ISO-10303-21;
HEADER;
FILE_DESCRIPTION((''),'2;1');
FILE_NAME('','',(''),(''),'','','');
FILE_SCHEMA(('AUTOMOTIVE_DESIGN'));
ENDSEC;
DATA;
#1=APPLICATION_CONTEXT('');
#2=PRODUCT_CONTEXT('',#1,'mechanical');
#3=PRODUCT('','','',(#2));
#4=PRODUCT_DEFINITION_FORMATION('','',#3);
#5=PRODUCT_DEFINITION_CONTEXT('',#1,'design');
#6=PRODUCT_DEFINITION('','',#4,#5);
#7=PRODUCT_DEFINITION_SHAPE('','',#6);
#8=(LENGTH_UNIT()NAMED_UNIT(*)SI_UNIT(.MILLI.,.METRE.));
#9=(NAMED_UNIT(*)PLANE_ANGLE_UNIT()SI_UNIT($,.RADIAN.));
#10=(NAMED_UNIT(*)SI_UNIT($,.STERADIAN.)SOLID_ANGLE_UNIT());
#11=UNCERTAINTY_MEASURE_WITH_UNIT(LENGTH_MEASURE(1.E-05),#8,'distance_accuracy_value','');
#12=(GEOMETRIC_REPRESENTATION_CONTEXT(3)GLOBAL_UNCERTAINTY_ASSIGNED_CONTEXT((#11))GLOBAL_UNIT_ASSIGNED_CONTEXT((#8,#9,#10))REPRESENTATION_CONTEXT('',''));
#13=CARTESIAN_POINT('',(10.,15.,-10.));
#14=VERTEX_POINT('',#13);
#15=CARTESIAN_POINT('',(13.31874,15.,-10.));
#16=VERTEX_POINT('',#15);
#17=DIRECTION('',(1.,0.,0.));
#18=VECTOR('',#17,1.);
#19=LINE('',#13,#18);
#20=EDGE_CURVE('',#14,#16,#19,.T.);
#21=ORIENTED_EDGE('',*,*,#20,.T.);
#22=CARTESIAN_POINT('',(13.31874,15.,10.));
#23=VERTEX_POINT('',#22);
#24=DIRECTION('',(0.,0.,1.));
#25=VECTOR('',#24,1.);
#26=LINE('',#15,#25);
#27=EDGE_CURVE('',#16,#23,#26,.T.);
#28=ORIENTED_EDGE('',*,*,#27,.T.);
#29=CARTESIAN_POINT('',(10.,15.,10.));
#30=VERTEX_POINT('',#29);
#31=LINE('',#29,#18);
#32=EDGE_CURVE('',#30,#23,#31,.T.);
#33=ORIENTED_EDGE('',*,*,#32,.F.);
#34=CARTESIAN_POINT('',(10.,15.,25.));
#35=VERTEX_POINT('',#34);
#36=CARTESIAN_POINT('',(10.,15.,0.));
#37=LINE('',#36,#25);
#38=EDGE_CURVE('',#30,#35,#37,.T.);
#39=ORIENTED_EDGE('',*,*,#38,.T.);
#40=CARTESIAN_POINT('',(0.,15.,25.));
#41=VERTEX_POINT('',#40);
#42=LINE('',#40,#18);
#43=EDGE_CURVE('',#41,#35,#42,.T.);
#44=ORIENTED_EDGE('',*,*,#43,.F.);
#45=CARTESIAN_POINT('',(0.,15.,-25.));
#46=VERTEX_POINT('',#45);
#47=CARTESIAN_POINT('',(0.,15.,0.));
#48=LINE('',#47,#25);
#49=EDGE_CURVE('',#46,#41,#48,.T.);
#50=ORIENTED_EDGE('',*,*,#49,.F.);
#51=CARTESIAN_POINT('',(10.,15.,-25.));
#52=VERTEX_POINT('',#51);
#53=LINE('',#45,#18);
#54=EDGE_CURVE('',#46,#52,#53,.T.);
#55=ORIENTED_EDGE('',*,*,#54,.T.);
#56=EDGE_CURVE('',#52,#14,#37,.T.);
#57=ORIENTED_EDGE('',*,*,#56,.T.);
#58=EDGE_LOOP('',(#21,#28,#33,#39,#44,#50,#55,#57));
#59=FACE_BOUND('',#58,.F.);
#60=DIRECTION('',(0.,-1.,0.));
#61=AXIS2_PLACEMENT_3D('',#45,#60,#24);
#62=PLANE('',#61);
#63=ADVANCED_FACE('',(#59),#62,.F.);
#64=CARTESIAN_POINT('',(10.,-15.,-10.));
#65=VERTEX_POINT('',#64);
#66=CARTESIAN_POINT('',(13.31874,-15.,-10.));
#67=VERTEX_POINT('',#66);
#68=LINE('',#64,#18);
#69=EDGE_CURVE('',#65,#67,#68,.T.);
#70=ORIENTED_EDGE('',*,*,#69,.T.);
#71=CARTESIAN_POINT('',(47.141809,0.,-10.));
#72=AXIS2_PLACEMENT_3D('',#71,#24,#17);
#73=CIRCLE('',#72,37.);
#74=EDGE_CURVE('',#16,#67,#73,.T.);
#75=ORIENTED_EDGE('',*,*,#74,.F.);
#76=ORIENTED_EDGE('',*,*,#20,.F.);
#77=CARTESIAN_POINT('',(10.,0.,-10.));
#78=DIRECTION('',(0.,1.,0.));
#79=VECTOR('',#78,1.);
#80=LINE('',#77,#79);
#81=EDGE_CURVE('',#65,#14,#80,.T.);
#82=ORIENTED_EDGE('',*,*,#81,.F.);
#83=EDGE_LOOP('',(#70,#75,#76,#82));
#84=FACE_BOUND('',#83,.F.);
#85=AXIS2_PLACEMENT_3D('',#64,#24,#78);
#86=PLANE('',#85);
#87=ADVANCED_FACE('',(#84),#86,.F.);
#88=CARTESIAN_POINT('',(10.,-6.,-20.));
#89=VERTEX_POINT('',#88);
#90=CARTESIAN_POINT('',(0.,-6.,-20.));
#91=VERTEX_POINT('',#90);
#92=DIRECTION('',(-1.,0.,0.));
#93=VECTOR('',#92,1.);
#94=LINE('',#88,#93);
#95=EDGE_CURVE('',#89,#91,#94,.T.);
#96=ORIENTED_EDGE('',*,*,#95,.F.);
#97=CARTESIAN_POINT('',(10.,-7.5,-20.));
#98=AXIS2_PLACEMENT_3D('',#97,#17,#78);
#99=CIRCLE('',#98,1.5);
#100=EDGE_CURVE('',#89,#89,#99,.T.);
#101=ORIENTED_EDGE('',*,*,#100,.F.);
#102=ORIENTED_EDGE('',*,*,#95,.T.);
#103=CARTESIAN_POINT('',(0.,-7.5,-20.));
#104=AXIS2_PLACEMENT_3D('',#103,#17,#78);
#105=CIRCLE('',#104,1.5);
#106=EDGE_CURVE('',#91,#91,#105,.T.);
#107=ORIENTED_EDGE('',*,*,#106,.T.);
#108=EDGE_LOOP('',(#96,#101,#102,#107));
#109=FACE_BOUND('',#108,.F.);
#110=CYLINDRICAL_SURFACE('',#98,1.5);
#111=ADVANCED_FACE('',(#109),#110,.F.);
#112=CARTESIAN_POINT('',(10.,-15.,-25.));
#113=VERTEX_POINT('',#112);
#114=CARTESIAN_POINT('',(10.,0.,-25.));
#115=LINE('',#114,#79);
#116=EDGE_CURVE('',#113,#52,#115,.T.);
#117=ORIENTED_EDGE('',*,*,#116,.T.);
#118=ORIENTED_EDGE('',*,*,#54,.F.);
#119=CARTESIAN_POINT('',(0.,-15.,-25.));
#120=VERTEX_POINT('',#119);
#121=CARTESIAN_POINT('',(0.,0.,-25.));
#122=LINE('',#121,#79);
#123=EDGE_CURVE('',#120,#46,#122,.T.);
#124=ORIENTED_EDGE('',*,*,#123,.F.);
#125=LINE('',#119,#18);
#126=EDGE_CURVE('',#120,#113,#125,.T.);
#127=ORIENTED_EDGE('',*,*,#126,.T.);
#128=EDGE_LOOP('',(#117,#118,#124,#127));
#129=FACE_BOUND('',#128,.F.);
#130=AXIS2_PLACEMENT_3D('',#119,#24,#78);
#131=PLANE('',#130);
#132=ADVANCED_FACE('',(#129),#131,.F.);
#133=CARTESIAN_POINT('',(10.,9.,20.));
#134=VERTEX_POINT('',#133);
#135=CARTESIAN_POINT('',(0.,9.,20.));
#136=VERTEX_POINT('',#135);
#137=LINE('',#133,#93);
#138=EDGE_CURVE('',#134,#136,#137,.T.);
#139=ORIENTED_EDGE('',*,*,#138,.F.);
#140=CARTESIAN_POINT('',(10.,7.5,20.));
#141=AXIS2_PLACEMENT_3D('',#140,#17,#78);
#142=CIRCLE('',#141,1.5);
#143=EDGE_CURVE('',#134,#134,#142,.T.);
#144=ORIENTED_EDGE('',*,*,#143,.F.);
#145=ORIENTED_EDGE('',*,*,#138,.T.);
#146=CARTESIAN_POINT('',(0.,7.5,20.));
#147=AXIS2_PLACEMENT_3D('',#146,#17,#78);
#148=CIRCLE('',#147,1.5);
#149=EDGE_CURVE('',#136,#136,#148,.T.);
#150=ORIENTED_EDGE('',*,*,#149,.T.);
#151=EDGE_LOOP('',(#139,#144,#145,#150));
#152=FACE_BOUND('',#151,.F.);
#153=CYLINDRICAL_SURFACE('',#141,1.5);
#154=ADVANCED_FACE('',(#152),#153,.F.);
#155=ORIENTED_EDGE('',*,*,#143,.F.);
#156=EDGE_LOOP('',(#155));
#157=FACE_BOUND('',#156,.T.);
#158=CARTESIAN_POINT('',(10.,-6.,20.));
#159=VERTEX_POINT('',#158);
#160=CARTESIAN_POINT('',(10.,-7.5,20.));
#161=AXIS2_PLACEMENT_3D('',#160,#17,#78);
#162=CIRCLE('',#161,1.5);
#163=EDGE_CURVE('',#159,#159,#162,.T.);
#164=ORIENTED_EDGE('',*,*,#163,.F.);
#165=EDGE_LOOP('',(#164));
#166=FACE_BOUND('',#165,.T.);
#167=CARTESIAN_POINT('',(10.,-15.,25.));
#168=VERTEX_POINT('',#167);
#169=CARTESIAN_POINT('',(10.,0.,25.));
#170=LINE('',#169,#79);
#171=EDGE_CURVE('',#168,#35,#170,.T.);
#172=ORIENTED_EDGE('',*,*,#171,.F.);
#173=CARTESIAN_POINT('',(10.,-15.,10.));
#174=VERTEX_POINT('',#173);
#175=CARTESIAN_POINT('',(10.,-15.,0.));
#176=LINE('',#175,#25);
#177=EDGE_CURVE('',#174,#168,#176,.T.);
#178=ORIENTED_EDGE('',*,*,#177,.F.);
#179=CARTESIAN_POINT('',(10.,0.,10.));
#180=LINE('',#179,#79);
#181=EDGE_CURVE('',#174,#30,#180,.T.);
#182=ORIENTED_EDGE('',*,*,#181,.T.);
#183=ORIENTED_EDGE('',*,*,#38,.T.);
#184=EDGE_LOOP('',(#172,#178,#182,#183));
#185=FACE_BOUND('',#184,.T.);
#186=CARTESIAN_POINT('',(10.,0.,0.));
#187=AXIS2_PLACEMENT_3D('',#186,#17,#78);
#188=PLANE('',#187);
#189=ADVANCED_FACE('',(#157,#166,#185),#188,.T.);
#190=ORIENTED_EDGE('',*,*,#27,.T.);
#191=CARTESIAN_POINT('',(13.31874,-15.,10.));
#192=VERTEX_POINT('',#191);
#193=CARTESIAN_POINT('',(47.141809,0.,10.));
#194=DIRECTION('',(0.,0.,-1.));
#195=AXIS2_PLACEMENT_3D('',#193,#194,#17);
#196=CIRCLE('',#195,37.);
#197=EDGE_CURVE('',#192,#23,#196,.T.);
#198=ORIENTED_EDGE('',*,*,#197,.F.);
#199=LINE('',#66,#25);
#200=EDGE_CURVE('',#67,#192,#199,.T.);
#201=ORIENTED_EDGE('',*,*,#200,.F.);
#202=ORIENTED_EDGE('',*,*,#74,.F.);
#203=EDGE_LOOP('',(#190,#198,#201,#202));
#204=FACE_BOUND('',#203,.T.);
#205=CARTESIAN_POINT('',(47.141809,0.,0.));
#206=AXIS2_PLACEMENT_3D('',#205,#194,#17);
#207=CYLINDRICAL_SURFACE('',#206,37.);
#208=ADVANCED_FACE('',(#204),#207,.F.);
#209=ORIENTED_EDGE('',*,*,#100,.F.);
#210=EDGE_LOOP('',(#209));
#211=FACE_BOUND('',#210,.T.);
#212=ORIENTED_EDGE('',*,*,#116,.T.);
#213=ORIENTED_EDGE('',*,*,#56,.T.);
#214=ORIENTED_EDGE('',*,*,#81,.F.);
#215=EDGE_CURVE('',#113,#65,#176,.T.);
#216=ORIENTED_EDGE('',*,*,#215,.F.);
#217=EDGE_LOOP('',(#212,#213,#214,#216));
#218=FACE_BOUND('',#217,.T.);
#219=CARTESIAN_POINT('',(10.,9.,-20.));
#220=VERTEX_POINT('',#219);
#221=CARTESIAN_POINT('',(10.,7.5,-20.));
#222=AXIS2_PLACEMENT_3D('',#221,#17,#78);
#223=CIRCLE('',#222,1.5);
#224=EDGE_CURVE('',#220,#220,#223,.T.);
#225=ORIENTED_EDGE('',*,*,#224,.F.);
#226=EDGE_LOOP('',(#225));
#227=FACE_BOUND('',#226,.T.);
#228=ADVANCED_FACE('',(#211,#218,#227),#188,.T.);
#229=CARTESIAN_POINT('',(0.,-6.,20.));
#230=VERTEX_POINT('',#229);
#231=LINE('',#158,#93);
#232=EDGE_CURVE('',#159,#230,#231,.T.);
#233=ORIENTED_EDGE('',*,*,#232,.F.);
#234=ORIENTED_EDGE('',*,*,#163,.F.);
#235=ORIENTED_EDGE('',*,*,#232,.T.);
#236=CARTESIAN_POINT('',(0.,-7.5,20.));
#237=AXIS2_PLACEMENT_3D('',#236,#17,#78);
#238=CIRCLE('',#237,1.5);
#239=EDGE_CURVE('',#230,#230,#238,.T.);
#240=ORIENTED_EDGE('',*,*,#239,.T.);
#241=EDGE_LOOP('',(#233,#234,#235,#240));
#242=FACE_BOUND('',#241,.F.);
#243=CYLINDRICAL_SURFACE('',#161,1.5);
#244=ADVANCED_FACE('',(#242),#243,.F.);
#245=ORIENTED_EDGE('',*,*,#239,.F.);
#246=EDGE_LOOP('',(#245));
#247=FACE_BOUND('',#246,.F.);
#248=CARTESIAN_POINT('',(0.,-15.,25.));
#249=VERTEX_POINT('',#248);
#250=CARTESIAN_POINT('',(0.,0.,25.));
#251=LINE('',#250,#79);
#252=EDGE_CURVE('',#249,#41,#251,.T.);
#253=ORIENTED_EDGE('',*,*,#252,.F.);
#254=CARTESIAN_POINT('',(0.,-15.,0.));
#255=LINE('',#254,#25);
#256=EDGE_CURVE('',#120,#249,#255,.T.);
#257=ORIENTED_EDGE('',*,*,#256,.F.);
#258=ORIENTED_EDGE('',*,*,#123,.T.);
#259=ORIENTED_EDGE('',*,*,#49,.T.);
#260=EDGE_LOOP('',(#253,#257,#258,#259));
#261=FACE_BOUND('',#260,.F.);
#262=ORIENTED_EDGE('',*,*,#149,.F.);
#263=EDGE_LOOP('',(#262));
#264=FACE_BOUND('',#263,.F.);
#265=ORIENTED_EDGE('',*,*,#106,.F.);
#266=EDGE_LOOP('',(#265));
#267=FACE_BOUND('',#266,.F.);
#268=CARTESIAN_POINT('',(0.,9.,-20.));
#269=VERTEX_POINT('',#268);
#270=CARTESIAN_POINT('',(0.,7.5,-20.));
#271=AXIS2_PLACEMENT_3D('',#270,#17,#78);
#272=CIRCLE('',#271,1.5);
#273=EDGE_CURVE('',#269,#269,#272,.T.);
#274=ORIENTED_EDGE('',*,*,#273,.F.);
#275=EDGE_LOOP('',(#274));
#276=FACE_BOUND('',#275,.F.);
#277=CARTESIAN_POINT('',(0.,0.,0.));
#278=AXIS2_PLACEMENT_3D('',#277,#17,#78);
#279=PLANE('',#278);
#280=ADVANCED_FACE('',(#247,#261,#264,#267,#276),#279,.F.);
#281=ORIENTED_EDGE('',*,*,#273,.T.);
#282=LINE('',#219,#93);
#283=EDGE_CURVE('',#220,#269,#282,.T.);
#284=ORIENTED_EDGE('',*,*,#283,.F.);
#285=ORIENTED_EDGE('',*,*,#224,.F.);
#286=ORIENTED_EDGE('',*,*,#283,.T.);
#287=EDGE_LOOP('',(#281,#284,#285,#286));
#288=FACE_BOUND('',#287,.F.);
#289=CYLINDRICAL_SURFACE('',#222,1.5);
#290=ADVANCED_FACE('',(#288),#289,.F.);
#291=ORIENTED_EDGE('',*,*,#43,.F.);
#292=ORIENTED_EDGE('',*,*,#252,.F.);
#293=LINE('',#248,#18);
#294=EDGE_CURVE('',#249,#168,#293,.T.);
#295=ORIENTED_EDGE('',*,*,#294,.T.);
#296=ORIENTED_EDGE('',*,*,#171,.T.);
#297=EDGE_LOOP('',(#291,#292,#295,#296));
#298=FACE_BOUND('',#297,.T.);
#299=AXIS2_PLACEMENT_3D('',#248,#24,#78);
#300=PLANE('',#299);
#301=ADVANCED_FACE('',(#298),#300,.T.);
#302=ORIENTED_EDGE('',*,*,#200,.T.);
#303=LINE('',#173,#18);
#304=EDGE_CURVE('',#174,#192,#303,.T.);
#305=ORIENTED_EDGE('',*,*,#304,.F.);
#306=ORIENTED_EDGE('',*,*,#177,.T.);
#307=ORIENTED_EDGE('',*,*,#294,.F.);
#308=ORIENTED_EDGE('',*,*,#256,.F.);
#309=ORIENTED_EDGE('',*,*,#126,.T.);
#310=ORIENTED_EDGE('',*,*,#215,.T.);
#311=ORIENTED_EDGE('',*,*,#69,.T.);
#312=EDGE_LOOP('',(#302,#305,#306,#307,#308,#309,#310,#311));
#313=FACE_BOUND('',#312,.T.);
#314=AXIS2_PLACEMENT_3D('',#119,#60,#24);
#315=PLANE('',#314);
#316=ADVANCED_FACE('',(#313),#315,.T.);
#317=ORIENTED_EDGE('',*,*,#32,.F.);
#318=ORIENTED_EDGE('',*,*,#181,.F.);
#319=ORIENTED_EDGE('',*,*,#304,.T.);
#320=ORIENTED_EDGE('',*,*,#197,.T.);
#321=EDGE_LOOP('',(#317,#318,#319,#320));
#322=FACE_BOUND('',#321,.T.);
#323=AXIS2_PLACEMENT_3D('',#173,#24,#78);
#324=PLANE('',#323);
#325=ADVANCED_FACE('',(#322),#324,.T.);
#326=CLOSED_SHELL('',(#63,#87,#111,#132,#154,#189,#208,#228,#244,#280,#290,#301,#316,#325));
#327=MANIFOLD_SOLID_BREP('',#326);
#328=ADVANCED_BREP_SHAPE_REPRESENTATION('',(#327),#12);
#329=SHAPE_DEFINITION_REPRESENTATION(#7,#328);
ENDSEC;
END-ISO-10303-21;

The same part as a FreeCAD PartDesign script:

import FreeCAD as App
import Part
import Sketcher

V = App.Vector
Q = App.Units.Quantity

doc = App.newDocument("Part")
body = doc.addObject("PartDesign::Body", "Body")

sketch1 = body.newObject("Sketcher::SketchObject", "Sketch")
sketch1.AttachmentSupport = (doc.getObject("YZ_Plane"), [""])
sketch1.MapMode = "FlatFace"
sketch1.addGeometry(Part.LineSegment(V(-15, 25, 0), V(-15, -25, 0)), False)
sketch1.addGeometry(Part.LineSegment(V(-15, -25, 0), V(15, -25, 0)), False)
sketch1.addGeometry(Part.LineSegment(V(15, -25, 0), V(15, 25, 0)), False)
sketch1.addGeometry(Part.LineSegment(V(15, 25, 0), V(-15, 25, 0)), False)
sketch1.addConstraint(Sketcher.Constraint("Coincident", 0, 2, 1, 1))
sketch1.addConstraint(Sketcher.Constraint("Coincident", 1, 2, 2, 1))
sketch1.addConstraint(Sketcher.Constraint("Coincident", 2, 2, 3, 1))
sketch1.addConstraint(Sketcher.Constraint("Coincident", 3, 2, 0, 1))
sketch1.addConstraint(Sketcher.Constraint("Vertical", 0))
sketch1.addConstraint(Sketcher.Constraint("Horizontal", 1))
sketch1.addConstraint(Sketcher.Constraint("Vertical", 2))
sketch1.addConstraint(Sketcher.Constraint("Horizontal", 3))
sketch1.addConstraint(Sketcher.Constraint("Symmetric", 0, 2, 2, 2, -1, 1))
sketch1.addConstraint(Sketcher.Constraint("DistanceX", 1, 1, 1, 2, Q("30 mm")))
sketch1.addConstraint(Sketcher.Constraint("DistanceY", 0, 2, 0, 1, Q("50 mm")))
pad1 = body.newObject("PartDesign::Pad", "Pad")
pad1.Profile = sketch1
pad1.Length = 10

sketch2 = body.newObject("Sketcher::SketchObject", "Sketch001")
sketch2.AttachmentSupport = (doc.getObject("YZ_Plane"), [""])
sketch2.MapMode = "FlatFace"
sketch2.AttachmentOffset = App.Placement(V(0, 0, 10), App.Rotation())
sketch2.addGeometry(Part.LineSegment(V(-15, 10, 0), V(-15, -10, 0)), False)
sketch2.addGeometry(Part.LineSegment(V(-15, -10, 0), V(15, -10, 0)), False)
sketch2.addGeometry(Part.LineSegment(V(15, -10, 0), V(15, 10, 0)), False)
sketch2.addGeometry(Part.LineSegment(V(15, 10, 0), V(-15, 10, 0)), False)
sketch2.addConstraint(Sketcher.Constraint("Coincident", 0, 2, 1, 1))
sketch2.addConstraint(Sketcher.Constraint("Coincident", 1, 2, 2, 1))
sketch2.addConstraint(Sketcher.Constraint("Coincident", 2, 2, 3, 1))
sketch2.addConstraint(Sketcher.Constraint("Coincident", 3, 2, 0, 1))
sketch2.addConstraint(Sketcher.Constraint("Vertical", 0))
sketch2.addConstraint(Sketcher.Constraint("Horizontal", 1))
sketch2.addConstraint(Sketcher.Constraint("Vertical", 2))
sketch2.addConstraint(Sketcher.Constraint("Horizontal", 3))
sketch2.addConstraint(Sketcher.Constraint("Symmetric", 0, 2, 2, 2, -1, 1))
sketch2.addConstraint(Sketcher.Constraint("DistanceX", 1, 1, 1, 2, Q("30 mm")))
sketch2.addConstraint(Sketcher.Constraint("DistanceY", 0, 2, 0, 1, Q("20 mm")))
pad2 = body.newObject("PartDesign::Pad", "Pad001")
pad2.Profile = sketch2
pad2.Length = 10

sketch3 = body.newObject("Sketcher::SketchObject", "Sketch002")
sketch3.AttachmentSupport = (doc.getObject("XY_Plane"), [""])
sketch3.MapMode = "FlatFace"
sketch3.addGeometry(Part.Circle(V(47, 0, 0), V(0, 0, 1), 37), False)
sketch3.addConstraint(Sketcher.Constraint("PointOnObject", 0, 3, -1))
sketch3.addConstraint(Sketcher.Constraint("Diameter", 0, Q("74 mm")))
sketch3.addConstraint(Sketcher.Constraint("DistanceX", -1, 1, 0, 3, Q("47.141809 mm")))
pocket1 = body.newObject("PartDesign::Pocket", "Pocket")
pocket1.Profile = sketch3
pocket1.Type = "ThroughAll"

sketch4 = body.newObject("Sketcher::SketchObject", "Sketch003")
sketch4.AttachmentSupport = (doc.getObject("XY_Plane"), [""])
sketch4.MapMode = "FlatFace"
sketch4.addGeometry(Part.Circle(V(47, 0, 0), V(0, 0, 1), 37), False)
sketch4.addConstraint(Sketcher.Constraint("PointOnObject", 0, 3, -1))
sketch4.addConstraint(Sketcher.Constraint("Diameter", 0, Q("74 mm")))
sketch4.addConstraint(Sketcher.Constraint("DistanceX", -1, 1, 0, 3, Q("47.141809 mm")))
pocket2 = body.newObject("PartDesign::Pocket", "Pocket001")
pocket2.Profile = sketch4
pocket2.Type = "ThroughAll"
pocket2.Reversed = True

sketch5 = body.newObject("Sketcher::SketchObject", "Sketch004")
sketch5.AttachmentSupport = (doc.getObject("YZ_Plane"), [""])
sketch5.MapMode = "FlatFace"
sketch5.AttachmentOffset = App.Placement(V(0, 0, 10), App.Rotation())
sketch5.addGeometry(Part.Circle(V(-7.5, 20, 0), V(0, 0, 1), 1.5), False)
sketch5.addGeometry(Part.Circle(V(7.5, 20, 0), V(0, 0, 1), 1.5), False)
sketch5.addGeometry(Part.Circle(V(-7.5, -20, 0), V(0, 0, 1), 1.5), False)
sketch5.addGeometry(Part.Circle(V(7.5, -20, 0), V(0, 0, 1), 1.5), False)
sketch5.addConstraint(Sketcher.Constraint("Equal", 0, 1))
sketch5.addConstraint(Sketcher.Constraint("Equal", 1, 2))
sketch5.addConstraint(Sketcher.Constraint("Equal", 2, 3))
sketch5.addConstraint(Sketcher.Constraint("Symmetric", 1, 3, 2, 3, -1, 1))
sketch5.addConstraint(Sketcher.Constraint("Symmetric", 0, 3, 3, 3, -1, 1))
sketch5.addConstraint(Sketcher.Constraint("Symmetric", 0, 3, 1, 3, -2))
sketch5.addConstraint(Sketcher.Constraint("Diameter", 0, Q("3 mm")))
sketch5.addConstraint(Sketcher.Constraint("DistanceY", -1, 1, 0, 3, Q("20 mm")))
sketch5.addConstraint(Sketcher.Constraint("DistanceX", 0, 3, 1, 3, Q("15 mm")))
pocket3 = body.newObject("PartDesign::Pocket", "Pocket002")
pocket3.Profile = sketch5
pocket3.Type = "ThroughAll"

doc.recompute()
